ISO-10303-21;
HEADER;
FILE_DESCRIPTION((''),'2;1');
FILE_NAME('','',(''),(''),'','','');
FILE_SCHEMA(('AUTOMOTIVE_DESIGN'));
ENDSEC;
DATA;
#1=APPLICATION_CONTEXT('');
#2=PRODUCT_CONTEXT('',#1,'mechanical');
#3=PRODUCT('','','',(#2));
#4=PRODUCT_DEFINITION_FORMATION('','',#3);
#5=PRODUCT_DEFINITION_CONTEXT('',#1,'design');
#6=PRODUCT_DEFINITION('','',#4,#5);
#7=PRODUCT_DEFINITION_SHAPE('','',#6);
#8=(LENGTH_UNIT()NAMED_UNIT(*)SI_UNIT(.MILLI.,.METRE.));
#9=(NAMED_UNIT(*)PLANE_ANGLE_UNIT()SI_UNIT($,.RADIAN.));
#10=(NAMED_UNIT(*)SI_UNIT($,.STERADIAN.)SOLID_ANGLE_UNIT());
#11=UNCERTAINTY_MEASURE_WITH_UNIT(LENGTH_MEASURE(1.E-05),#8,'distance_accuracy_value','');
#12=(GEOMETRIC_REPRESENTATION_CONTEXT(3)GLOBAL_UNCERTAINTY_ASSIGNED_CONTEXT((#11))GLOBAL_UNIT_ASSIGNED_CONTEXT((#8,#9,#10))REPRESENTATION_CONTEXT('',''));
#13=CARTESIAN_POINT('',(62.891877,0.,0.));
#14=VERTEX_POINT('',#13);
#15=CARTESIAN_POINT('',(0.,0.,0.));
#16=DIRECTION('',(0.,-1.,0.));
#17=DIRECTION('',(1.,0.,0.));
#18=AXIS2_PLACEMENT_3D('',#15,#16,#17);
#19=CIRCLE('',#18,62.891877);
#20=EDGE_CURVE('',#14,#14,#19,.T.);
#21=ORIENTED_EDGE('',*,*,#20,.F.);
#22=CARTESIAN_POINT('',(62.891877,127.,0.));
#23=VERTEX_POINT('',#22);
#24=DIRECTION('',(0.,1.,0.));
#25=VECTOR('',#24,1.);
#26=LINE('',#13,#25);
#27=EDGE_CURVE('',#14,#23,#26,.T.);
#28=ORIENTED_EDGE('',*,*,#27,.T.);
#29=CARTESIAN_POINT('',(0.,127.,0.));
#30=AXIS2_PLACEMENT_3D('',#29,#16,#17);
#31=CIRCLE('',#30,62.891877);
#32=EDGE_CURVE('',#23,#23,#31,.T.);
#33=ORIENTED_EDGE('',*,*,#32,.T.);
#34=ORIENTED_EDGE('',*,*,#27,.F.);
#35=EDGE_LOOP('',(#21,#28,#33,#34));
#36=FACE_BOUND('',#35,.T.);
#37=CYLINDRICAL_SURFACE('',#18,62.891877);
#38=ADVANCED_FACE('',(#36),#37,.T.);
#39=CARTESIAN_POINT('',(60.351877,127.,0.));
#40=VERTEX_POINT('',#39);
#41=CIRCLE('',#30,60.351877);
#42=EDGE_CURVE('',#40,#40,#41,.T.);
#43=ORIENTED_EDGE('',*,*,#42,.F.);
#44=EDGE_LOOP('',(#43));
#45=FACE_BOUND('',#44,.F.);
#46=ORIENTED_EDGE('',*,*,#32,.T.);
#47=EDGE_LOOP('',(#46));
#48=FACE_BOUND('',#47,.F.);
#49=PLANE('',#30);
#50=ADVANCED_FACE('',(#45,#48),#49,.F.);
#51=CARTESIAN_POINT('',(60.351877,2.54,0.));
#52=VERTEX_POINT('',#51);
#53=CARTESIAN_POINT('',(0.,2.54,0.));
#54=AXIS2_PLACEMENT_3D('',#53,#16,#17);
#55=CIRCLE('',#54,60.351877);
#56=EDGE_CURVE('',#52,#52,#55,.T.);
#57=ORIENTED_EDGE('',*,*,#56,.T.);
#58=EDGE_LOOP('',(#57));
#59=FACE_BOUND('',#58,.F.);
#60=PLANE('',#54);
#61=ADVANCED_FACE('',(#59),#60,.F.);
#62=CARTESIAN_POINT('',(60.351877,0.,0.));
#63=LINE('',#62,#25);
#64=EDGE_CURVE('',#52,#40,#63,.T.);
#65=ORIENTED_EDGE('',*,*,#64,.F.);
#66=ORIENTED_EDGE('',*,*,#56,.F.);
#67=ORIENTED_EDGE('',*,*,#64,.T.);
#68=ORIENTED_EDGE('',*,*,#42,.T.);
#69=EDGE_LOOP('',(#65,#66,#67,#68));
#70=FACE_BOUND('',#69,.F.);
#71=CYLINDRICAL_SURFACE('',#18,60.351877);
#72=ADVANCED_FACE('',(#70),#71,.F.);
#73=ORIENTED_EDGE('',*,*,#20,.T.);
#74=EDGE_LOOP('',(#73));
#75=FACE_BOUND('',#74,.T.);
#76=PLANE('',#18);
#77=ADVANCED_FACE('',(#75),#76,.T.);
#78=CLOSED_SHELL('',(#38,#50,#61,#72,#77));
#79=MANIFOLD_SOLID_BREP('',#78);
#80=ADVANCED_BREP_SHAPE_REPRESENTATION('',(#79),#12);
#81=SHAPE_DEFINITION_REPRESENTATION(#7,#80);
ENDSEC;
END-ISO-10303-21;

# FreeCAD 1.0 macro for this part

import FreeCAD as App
import Part
import Sketcher
from FreeCAD import Vector


def faces_at(feature, points):
    """Names of the faces that lie closest to the given points."""
    faces = feature.Shape.Faces
    near = lambda p: min(range(len(faces)), key=lambda i: faces[i].distToShape(Part.Vertex(*p))[0])
    return sorted({f"Face{near(p) + 1}" for p in points})

doc = App.newDocument("Part")
params = doc.addObject("Spreadsheet::Sheet", "Params")
for row, (alias, value) in enumerate([
    ("pad1_length", "5 in"),
    ("thickness_wall", "0.1 in"),
], start=1):
    params.set(f"A{row}", alias)
    params.set(f"B{row}", "=" + value)
    params.setAlias(f"B{row}", alias)

body = doc.addObject("PartDesign::Body", "Body")

sketch1 = body.newObject("Sketcher::SketchObject", "Sketch")
sketch1.AttachmentSupport = (doc.getObject("XZ_Plane"), [""])
sketch1.MapMode = "FlatFace"
sketch1.addGeometry(Part.Circle(Vector(0, 0, 0), Vector(0, 0, 1), 63), False)
sketch1.addConstraint(Sketcher.Constraint("Coincident", 0, 3, -1, 1))
sketch1.addConstraint(Sketcher.Constraint("Diameter", 0, 125.783754))
pad1 = body.newObject("PartDesign::Pad", "Pad")
pad1.Profile = sketch1
pad1.setExpression("Length", "Params.pad1_length")
pad1.Reversed = True
doc.recompute()

thickness = body.newObject("PartDesign::Thickness", "Thickness")
thickness.Base = (pad1, faces_at(pad1, [(0, 127, 0)]))
thickness.setExpression("Value", "Params.thickness_wall")
thickness.Reversed = True
thickness.Join = "Arc"

doc.recompute()
